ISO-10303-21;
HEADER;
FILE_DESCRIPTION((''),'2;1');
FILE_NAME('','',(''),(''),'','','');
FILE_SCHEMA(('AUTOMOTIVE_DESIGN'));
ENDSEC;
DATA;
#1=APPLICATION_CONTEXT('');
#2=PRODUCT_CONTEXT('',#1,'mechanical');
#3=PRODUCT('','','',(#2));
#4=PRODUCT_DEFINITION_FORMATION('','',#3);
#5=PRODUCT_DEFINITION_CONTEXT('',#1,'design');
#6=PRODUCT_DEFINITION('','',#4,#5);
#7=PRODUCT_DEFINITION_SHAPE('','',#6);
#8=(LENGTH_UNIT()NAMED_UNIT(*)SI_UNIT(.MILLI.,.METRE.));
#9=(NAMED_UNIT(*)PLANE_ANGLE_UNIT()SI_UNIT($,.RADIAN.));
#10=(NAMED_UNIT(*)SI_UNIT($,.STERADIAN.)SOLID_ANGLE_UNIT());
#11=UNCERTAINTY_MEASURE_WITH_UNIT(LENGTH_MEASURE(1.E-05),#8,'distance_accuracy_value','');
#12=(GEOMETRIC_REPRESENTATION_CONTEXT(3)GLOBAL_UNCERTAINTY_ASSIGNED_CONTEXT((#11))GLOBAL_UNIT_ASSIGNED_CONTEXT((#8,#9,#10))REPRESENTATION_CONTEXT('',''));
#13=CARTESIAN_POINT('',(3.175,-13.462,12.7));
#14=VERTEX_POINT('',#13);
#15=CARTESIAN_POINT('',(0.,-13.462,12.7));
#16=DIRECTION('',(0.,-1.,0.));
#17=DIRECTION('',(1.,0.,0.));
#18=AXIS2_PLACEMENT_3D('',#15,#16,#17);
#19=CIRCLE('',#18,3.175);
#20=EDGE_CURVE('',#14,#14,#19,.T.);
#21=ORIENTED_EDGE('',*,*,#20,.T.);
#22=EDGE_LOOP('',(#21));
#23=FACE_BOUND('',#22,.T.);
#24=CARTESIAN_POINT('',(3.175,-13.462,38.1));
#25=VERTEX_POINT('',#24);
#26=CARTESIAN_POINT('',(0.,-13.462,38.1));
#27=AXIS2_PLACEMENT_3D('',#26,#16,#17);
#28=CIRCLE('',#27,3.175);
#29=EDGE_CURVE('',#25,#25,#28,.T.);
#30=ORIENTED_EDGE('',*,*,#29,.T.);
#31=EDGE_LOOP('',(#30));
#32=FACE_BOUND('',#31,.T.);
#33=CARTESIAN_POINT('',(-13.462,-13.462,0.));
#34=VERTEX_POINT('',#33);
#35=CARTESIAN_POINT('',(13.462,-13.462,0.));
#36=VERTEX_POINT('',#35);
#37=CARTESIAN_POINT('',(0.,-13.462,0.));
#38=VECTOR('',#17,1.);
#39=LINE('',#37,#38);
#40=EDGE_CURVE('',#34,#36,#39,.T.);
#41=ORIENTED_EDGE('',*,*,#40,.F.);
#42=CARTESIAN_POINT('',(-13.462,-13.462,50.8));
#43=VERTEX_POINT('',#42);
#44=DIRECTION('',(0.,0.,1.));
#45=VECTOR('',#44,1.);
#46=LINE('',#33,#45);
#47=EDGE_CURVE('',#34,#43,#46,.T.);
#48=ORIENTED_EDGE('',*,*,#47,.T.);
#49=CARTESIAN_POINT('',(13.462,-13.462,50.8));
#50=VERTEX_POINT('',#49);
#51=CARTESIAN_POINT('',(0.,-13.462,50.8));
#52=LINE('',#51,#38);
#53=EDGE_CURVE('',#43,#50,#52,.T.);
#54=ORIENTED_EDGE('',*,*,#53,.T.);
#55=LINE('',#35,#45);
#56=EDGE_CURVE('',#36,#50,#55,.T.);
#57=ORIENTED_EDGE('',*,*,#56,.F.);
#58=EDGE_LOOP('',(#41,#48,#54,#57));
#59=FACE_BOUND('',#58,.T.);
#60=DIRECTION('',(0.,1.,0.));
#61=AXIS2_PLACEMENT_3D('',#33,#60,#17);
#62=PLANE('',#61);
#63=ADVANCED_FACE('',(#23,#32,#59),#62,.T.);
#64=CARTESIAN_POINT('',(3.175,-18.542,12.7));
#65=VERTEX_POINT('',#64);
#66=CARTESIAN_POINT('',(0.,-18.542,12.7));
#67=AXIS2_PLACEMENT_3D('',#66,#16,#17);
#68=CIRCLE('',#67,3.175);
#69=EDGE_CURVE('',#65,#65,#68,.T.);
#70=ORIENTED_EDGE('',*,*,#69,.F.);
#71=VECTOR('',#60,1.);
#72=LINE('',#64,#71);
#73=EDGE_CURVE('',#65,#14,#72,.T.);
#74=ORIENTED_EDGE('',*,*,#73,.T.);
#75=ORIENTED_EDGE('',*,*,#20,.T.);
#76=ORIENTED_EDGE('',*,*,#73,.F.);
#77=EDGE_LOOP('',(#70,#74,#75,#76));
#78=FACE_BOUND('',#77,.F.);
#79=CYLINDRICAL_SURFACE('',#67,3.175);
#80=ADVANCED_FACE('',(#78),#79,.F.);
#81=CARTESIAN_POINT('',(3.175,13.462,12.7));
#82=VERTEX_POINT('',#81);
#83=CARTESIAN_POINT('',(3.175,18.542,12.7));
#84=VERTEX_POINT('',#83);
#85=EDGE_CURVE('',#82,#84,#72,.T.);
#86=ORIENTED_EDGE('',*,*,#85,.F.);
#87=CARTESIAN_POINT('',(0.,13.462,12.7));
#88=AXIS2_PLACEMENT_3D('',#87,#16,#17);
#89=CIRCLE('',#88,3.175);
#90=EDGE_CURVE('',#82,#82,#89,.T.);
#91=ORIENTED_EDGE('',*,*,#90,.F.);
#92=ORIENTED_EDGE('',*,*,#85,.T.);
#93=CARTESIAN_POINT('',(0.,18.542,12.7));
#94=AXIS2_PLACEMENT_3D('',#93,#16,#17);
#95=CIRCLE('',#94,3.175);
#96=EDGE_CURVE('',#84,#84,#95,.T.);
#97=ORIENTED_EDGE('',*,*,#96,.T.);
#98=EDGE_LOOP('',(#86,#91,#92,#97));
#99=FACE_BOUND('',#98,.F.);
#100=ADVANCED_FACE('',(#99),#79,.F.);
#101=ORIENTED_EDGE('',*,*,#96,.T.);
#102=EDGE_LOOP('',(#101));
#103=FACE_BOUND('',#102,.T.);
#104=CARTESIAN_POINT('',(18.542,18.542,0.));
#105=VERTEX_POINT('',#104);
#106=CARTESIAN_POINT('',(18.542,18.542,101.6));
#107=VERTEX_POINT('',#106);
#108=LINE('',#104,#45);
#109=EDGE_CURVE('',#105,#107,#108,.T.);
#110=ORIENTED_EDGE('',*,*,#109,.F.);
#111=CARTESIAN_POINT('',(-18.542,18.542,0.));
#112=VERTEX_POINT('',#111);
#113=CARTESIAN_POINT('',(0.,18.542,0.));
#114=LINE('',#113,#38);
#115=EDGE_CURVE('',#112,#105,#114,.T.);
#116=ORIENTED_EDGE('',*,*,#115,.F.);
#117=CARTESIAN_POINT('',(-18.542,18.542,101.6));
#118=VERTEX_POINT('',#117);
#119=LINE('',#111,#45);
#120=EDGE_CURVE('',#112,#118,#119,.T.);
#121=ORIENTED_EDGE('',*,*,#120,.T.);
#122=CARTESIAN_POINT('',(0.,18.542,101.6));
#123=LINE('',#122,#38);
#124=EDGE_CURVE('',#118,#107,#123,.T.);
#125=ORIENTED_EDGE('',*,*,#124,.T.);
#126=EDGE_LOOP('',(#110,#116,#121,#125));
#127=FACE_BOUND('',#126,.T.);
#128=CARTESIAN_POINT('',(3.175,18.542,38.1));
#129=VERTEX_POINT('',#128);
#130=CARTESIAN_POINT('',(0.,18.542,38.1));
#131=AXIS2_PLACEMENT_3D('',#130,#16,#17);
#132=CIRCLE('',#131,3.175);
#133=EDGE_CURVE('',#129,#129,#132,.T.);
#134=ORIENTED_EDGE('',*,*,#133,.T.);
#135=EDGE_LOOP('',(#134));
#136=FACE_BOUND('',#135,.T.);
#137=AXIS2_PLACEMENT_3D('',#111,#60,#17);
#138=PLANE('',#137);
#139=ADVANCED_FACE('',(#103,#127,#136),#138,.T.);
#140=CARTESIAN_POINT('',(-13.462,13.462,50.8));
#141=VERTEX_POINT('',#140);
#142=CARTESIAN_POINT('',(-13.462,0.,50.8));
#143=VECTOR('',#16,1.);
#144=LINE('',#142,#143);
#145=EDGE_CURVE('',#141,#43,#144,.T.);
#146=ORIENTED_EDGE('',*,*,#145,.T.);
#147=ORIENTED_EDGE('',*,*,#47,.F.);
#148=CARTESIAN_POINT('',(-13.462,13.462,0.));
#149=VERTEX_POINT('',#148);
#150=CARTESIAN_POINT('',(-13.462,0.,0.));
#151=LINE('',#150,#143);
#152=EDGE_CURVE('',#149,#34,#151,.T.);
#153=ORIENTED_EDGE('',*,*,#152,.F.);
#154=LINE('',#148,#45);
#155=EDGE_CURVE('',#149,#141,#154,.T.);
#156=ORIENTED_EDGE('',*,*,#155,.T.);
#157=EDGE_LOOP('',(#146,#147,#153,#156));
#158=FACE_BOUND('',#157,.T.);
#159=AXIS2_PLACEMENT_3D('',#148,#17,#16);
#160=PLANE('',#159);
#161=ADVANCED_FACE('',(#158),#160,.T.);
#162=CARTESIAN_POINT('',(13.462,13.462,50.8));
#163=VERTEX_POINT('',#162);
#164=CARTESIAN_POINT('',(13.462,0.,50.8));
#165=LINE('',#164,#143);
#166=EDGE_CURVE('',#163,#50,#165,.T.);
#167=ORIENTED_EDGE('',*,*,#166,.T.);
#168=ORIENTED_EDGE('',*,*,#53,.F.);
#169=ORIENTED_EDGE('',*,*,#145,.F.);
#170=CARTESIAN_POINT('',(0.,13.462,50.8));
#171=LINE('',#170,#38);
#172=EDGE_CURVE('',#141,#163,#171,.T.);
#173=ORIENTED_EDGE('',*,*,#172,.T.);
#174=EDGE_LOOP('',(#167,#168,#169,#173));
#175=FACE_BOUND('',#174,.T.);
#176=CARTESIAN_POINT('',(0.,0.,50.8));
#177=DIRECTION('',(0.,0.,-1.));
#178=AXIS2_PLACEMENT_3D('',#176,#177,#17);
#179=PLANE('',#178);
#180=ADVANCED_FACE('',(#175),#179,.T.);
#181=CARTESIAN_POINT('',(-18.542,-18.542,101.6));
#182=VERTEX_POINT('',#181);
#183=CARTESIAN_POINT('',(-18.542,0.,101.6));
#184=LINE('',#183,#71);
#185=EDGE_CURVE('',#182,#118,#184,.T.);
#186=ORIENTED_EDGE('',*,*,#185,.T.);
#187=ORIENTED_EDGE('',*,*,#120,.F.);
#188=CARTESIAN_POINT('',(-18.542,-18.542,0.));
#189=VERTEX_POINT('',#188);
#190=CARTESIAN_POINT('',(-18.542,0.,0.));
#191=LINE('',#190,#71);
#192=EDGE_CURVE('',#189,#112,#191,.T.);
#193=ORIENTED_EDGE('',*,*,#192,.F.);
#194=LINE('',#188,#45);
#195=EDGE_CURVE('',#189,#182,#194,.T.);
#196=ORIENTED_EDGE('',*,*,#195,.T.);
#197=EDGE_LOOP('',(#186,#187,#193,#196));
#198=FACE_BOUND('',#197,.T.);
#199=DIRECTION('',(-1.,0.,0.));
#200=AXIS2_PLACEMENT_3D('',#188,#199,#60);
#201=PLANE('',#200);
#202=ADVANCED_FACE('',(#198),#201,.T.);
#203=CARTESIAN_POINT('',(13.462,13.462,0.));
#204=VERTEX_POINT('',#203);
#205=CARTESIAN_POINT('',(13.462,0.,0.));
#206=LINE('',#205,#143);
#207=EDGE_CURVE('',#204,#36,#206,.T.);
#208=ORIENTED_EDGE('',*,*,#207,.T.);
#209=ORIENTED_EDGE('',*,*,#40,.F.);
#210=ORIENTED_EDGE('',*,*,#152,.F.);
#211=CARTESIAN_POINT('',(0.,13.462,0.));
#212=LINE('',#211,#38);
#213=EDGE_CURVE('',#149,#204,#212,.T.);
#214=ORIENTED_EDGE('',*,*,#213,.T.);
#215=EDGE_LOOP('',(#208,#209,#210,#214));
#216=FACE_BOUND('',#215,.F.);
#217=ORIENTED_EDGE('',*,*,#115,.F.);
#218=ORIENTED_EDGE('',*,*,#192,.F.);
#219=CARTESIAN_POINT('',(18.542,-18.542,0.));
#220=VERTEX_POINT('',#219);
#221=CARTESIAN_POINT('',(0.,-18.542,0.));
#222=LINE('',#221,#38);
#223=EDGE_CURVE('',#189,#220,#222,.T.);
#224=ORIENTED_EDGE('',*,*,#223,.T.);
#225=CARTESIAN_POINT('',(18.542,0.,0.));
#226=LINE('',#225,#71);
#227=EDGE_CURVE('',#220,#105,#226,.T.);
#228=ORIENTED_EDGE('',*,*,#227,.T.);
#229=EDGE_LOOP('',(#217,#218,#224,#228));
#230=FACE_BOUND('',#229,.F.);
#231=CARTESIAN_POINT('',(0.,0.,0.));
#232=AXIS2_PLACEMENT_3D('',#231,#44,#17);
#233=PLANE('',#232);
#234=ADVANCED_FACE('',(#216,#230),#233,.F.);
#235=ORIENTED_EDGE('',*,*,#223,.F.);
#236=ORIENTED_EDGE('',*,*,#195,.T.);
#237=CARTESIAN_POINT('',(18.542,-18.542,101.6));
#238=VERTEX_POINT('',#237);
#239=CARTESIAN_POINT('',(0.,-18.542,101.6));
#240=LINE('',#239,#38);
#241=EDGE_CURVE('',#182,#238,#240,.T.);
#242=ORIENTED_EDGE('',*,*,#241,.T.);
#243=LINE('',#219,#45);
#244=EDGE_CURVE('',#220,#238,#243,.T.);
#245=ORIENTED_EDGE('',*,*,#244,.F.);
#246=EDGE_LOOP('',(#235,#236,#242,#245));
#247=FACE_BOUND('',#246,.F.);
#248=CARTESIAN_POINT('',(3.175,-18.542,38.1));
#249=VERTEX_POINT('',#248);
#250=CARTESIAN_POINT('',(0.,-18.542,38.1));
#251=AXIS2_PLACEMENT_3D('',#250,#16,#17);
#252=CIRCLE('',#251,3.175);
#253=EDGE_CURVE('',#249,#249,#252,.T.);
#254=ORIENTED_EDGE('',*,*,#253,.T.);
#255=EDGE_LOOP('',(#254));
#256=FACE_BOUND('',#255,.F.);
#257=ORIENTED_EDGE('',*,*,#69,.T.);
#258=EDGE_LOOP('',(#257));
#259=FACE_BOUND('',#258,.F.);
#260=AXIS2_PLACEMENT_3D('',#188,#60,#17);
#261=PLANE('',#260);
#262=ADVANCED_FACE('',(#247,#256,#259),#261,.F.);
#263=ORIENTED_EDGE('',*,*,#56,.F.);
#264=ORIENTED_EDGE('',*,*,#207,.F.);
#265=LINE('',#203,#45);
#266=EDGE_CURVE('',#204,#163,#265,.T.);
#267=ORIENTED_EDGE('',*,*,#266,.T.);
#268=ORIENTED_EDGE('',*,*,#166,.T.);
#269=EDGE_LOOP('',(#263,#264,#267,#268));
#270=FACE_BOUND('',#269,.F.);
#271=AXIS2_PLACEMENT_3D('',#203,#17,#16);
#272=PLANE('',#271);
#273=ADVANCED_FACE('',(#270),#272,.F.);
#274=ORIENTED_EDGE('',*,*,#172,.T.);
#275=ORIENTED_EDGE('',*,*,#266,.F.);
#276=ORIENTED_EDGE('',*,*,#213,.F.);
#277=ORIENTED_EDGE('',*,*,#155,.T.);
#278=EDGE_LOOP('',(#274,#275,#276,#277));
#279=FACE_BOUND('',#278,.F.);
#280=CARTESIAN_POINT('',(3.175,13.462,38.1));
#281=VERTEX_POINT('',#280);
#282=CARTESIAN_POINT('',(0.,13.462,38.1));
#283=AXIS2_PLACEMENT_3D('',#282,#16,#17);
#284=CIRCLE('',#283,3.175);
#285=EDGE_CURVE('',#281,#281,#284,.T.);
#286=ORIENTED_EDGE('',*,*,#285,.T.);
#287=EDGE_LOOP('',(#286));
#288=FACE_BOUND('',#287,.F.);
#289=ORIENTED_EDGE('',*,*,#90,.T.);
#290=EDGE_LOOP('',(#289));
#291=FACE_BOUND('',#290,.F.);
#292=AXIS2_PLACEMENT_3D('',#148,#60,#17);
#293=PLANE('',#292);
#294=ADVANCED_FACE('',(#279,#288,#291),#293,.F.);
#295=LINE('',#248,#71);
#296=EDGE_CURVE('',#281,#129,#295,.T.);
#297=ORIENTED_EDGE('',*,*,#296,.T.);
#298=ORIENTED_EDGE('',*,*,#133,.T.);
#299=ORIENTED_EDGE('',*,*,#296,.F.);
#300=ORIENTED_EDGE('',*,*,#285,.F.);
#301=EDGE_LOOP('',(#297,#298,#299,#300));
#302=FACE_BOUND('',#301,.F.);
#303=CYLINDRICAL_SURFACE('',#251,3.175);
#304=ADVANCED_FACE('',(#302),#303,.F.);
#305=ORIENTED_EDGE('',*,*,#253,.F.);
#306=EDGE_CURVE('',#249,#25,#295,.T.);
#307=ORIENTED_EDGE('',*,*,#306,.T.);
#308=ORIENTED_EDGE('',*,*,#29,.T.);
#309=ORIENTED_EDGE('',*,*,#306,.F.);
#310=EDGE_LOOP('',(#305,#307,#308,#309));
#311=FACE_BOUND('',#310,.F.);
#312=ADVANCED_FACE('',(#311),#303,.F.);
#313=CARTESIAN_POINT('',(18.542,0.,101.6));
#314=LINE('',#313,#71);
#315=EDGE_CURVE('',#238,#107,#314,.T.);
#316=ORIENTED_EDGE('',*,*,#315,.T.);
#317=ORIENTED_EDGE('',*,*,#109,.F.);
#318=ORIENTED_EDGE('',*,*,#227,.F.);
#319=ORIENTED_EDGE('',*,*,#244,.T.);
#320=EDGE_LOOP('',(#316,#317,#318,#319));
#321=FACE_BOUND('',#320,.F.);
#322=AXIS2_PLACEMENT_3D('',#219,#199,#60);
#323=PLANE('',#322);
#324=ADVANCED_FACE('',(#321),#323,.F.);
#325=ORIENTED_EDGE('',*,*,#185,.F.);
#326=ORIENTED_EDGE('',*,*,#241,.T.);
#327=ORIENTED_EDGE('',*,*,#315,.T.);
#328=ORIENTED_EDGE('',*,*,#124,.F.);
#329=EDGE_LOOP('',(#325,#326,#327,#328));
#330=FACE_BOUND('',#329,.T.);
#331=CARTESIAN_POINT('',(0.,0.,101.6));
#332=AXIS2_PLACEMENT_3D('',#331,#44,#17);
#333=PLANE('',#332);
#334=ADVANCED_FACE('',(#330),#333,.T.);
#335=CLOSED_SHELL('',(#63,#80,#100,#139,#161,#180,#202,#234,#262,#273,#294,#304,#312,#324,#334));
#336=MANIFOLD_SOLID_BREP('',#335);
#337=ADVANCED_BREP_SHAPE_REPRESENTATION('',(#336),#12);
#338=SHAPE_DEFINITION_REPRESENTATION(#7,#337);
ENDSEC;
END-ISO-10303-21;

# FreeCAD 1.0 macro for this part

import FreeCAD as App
import Part
import Sketcher
Q = App.Units.Quantity

doc = App.newDocument("Part")
body = doc.addObject("PartDesign::Body", "Body")

sketch1 = doc.addObject("Sketcher::SketchObject", "Sketch")
body.addObject(sketch1)
sketch1.AttachmentSupport = (doc.XY_Plane, [""])
sketch1.MapMode = "FlatFace"
sketch1.addGeometry([
    Part.LineSegment(App.Vector(-19, 19, 0), App.Vector(-19, -19, 0)),
    Part.LineSegment(App.Vector(-19, -19, 0), App.Vector(19, -19, 0)),
    Part.LineSegment(App.Vector(19, -19, 0), App.Vector(19, 19, 0)),
    Part.LineSegment(App.Vector(19, 19, 0), App.Vector(-19, 19, 0)),
], False)
sketch1.addConstraint([
    Sketcher.Constraint("Coincident", 0, 2, 1, 1),
    Sketcher.Constraint("Coincident", 1, 2, 2, 1),
    Sketcher.Constraint("Coincident", 2, 2, 3, 1),
    Sketcher.Constraint("Coincident", 3, 2, 0, 1),
    Sketcher.Constraint("Vertical", 0),
    Sketcher.Constraint("Horizontal", 1),
    Sketcher.Constraint("Vertical", 2),
    Sketcher.Constraint("Horizontal", 3),
    Sketcher.Constraint("Symmetric", 0, 2, 2, 2, -1, 1),
    Sketcher.Constraint("Equal", 3, 0),
    Sketcher.Constraint("DistanceX", 1, 1, 1, 2, Q("1.46 in")),
])
pad1 = doc.addObject("PartDesign::Pad", "Pad")
body.addObject(pad1)
pad1.Profile = sketch1
pad1.Length = Q("4 in")

sketch2 = doc.addObject("Sketcher::SketchObject", "Sketch001")
body.addObject(sketch2)
sketch2.AttachmentSupport = (doc.XY_Plane, [""])
sketch2.MapMode = "FlatFace"
sketch2.addGeometry([
    Part.LineSegment(App.Vector(-13, -13, 0), App.Vector(-13, 13, 0)),
    Part.LineSegment(App.Vector(-13, 13, 0), App.Vector(13, 13, 0)),
    Part.LineSegment(App.Vector(13, 13, 0), App.Vector(13, -13, 0)),
    Part.LineSegment(App.Vector(13, -13, 0), App.Vector(-13, -13, 0)),
], False)
sketch2.addConstraint([
    Sketcher.Constraint("Coincident", 0, 2, 1, 1),
    Sketcher.Constraint("Coincident", 1, 2, 2, 1),
    Sketcher.Constraint("Coincident", 2, 2, 3, 1),
    Sketcher.Constraint("Coincident", 3, 2, 0, 1),
    Sketcher.Constraint("Vertical", 0),
    Sketcher.Constraint("Horizontal", 1),
    Sketcher.Constraint("Vertical", 2),
    Sketcher.Constraint("Horizontal", 3),
    Sketcher.Constraint("Symmetric", 0, 2, 2, 2, -1, 1),
    Sketcher.Constraint("Equal", 3, 0),
    Sketcher.Constraint("DistanceX", 1, 1, 1, 2, Q("1.06 in")),
])
pocket1 = doc.addObject("PartDesign::Pocket", "Pocket")
body.addObject(pocket1)
pocket1.Profile = sketch2
pocket1.Length = Q("2 in")
pocket1.Reversed = True

sketch3 = doc.addObject("Sketcher::SketchObject", "Sketch002")
body.addObject(sketch3)
sketch3.AttachmentSupport = (doc.XZ_Plane, [""])
sketch3.MapMode = "FlatFace"
sketch3.AttachmentOffset = App.Placement(App.Vector(0, 0, 0.73 * 25.4), App.Rotation())
sketch3.addGeometry(Part.Circle(App.Vector(0, 12.7, 0), App.Vector(0, 0, 1), 3.2), False)
sketch3.addConstraint([
    Sketcher.Constraint("PointOnObject", 0, 3, -2),
    Sketcher.Constraint("Diameter", 0, Q("0.25 in")),
    Sketcher.Constraint("DistanceY", -1, 1, 0, 3, Q("0.5 in")),
])
pocket2 = doc.addObject("PartDesign::Pocket", "Pocket001")
body.addObject(pocket2)
pocket2.Profile = sketch3
pocket2.Type = "ThroughAll"

sketch4 = doc.addObject("Sketcher::SketchObject", "Sketch003")
body.addObject(sketch4)
sketch4.AttachmentSupport = (doc.XZ_Plane, [""])
sketch4.MapMode = "FlatFace"
sketch4.AttachmentOffset = App.Placement(App.Vector(0, 0, 0.73 * 25.4), App.Rotation())
sketch4.addGeometry(Part.Circle(App.Vector(0, 38.1, 0), App.Vector(0, 0, 1), 3.2), False)
sketch4.addConstraint([
    Sketcher.Constraint("PointOnObject", 0, 3, -2),
    Sketcher.Constraint("Diameter", 0, Q("0.25 in")),
    Sketcher.Constraint("DistanceY", -1, 1, 0, 3, Q("1.5 in")),
])
pocket3 = doc.addObject("PartDesign::Pocket", "Pocket002")
body.addObject(pocket3)
pocket3.Profile = sketch4
pocket3.Type = "ThroughAll"

doc.recompute()
